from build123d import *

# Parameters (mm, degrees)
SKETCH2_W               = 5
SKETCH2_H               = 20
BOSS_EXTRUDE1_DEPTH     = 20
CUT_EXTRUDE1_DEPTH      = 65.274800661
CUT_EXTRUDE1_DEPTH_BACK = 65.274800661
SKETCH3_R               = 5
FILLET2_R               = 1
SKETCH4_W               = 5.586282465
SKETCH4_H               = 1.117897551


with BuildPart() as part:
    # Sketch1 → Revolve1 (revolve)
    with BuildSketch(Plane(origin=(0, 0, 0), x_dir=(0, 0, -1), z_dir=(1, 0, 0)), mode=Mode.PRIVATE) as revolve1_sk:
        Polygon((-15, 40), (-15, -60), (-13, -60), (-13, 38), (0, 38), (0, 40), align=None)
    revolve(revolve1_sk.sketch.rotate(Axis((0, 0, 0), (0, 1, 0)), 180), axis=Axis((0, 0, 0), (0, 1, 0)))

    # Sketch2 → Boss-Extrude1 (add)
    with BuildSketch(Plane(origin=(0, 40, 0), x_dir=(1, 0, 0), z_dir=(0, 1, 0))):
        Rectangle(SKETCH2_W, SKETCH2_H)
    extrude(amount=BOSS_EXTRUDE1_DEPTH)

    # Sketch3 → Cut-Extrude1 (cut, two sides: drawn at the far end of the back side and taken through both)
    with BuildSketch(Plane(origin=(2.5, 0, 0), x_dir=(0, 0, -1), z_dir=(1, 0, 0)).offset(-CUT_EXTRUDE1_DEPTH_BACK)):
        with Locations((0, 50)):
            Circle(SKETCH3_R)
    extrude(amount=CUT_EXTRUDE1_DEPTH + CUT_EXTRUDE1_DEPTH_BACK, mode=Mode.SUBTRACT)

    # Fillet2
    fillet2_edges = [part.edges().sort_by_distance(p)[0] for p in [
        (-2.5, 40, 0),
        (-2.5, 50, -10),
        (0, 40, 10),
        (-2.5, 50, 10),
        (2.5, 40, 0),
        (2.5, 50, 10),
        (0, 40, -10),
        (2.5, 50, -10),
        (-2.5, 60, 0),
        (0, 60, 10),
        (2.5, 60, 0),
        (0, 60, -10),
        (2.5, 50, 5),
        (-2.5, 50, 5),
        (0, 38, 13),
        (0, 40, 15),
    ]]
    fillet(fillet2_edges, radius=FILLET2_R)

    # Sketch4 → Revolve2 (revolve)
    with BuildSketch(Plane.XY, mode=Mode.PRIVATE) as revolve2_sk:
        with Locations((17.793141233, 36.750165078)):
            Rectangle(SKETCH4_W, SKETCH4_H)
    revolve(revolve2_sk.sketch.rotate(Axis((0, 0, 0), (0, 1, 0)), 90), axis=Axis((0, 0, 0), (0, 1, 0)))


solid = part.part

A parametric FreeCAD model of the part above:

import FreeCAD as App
import Part
import Sketcher

V = App.Vector


def edges_at(feature, points):
    """Names of the edges that pass closest to the given points."""
    edges = feature.Shape.Edges
    near = lambda p: min(range(len(edges)), key=lambda i: edges[i].distToShape(Part.Vertex(*p))[0])
    return sorted({f"Edge{near(p) + 1}" for p in points})


def add_polygon(sketch, points):
    """Adds a closed chain of lines whose ends are joined by coincident constraints."""
    first, n = sketch.GeometryCount, len(points)
    for a, b in zip(points, points[1:] + points[:1]):
        sketch.addGeometry(Part.LineSegment(App.Vector(*a, 0), App.Vector(*b, 0)), False)
    for i in range(n):
        sketch.addConstraint(Sketcher.Constraint("Coincident", first + i, 2, first + (i + 1) % n, 1))

doc = App.newDocument("Part")
body = doc.addObject("PartDesign::Body", "Body")

sketch1 = body.newObject("Sketcher::SketchObject", "Sketch")
sketch1.AttachmentSupport = (doc.getObject("YZ_Plane"), [""])
sketch1.MapMode = "FlatFace"
add_polygon(sketch1, [(40, 15), (-60, 15), (-60, 13), (38, 13), (38, 0), (40, 0)])
sketch1.addConstraint(Sketcher.Constraint("Horizontal", 0))
sketch1.addConstraint(Sketcher.Constraint("Vertical", 1))
sketch1.addConstraint(Sketcher.Constraint("Horizontal", 2))
sketch1.addConstraint(Sketcher.Constraint("Vertical", 3))
sketch1.addConstraint(Sketcher.Constraint("Horizontal", 4))
sketch1.addConstraint(Sketcher.Constraint("Vertical", 5))
sketch1.addConstraint(Sketcher.Constraint("PointOnObject", 3, 2, -1))
sketch1.addConstraint(Sketcher.Constraint("Equal", 4, 1))
sketch1.addConstraint(Sketcher.Constraint("DistanceX", 0, 2, 0, 1, 100.0))
sketch1.addConstraint(Sketcher.Constraint("DistanceX", 2, 1, 2, 2, 98.0))
sketch1.addConstraint(Sketcher.Constraint("DistanceY", 3, 2, 3, 1, 13.0))
sketch1.addConstraint(Sketcher.Constraint("DistanceX", 0, 2, -1, 1, 60.0))
revolution = body.newObject("PartDesign::Revolution", "Revolution")
revolution.Profile = sketch1
revolution.ReferenceAxis = (sketch1, ["H_Axis"])
revolution.Angle = 360

sketch2 = body.newObject("Sketcher::SketchObject", "Sketch001")
sketch2.AttachmentSupport = (doc.getObject("XZ_Plane"), [""])
sketch2.MapMode = "FlatFace"
sketch2.AttachmentOffset = App.Placement(V(0, 0, -40), App.Rotation())
add_polygon(sketch2, [(-2, -10), (-2, 10), (2, 10), (2, -10)])
sketch2.addConstraint(Sketcher.Constraint("Vertical", 0))
sketch2.addConstraint(Sketcher.Constraint("Horizontal", 1))
sketch2.addConstraint(Sketcher.Constraint("Vertical", 2))
sketch2.addConstraint(Sketcher.Constraint("Horizontal", 3))
sketch2.addConstraint(Sketcher.Constraint("Symmetric", 0, 2, 2, 2, -1, 1))
sketch2.addConstraint(Sketcher.Constraint("DistanceX", 1, 1, 1, 2, 5.0))
sketch2.addConstraint(Sketcher.Constraint("DistanceY", 0, 1, 0, 2, 20.0))
pad1 = body.newObject("PartDesign::Pad", "Pad")
pad1.Profile = sketch2
pad1.Length = 20
pad1.Reversed = True

sketch3 = body.newObject("Sketcher::SketchObject", "Sketch002")
sketch3.AttachmentSupport = (doc.getObject("YZ_Plane"), [""])
sketch3.MapMode = "FlatFace"
sketch3.AttachmentOffset = App.Placement(V(0, 0, 2.5), App.Rotation())
sketch3.addGeometry(Part.Circle(V(50, 0, 0), V(0, 0, 1), 5), False)
sketch3.addConstraint(Sketcher.Constraint("PointOnObject", 0, 3, -1))
sketch3.addConstraint(Sketcher.Constraint("Diameter", 0, 10.0))
sketch3.addConstraint(Sketcher.Constraint("DistanceX", -1, 1, 0, 3, 50.0))
pocket1 = body.newObject("PartDesign::Pocket", "Pocket")
pocket1.Profile = sketch3
pocket1.Type = "ThroughAll"
pocket1.Midplane = True
doc.recompute()

fillet = body.newObject("PartDesign::Fillet", "Fillet")
fillet.Base = (pocket1, edges_at(pocket1, [
    (-2.5, 40, 0),
    (-2.5, 50, -10),
    (0, 40, 10),
    (-2.5, 50, 10),
    (2.5, 40, 0),
    (2.5, 50, 10),
    (0, 40, -10),
    (2.5, 50, -10),
    (-2.5, 60, 0),
    (0, 60, 10),
    (2.5, 60, 0),
    (0, 60, -10),
    (2.5, 50, 5),
    (-2.5, 50, 5),
    (0, 38, 13),
    (0, 40, 15),
]))
fillet.Radius = 1

sketch4 = body.newObject("Sketcher::SketchObject", "Sketch003")
sketch4.AttachmentSupport = (doc.getObject("XY_Plane"), [""])
sketch4.MapMode = "FlatFace"
add_polygon(sketch4, [(15, 37.3), (15, 36.2), (20.6, 36.2), (20.6, 37.3)])
sketch4.addConstraint(Sketcher.Constraint("Vertical", 0))
sketch4.addConstraint(Sketcher.Constraint("Horizontal", 1))
sketch4.addConstraint(Sketcher.Constraint("Vertical", 2))
sketch4.addConstraint(Sketcher.Constraint("Horizontal", 3))
sketch4.addConstraint(Sketcher.Constraint("DistanceX", -1, 1, 0, 2, 15.0))
sketch4.addConstraint(Sketcher.Constraint("DistanceX", 1, 1, 1, 2, 5.586282))
sketch4.addConstraint(Sketcher.Constraint("DistanceY", 0, 2, 0, 1, 1.117898))
sketch4.addConstraint(Sketcher.Constraint("DistanceY", -1, 1, 0, 2, 36.191216))
revolution2 = body.newObject("PartDesign::Revolution", "Revolution001")
revolution2.Profile = sketch4
revolution2.ReferenceAxis = (sketch4, ["V_Axis"])
revolution2.Angle = 360

doc.recompute()
